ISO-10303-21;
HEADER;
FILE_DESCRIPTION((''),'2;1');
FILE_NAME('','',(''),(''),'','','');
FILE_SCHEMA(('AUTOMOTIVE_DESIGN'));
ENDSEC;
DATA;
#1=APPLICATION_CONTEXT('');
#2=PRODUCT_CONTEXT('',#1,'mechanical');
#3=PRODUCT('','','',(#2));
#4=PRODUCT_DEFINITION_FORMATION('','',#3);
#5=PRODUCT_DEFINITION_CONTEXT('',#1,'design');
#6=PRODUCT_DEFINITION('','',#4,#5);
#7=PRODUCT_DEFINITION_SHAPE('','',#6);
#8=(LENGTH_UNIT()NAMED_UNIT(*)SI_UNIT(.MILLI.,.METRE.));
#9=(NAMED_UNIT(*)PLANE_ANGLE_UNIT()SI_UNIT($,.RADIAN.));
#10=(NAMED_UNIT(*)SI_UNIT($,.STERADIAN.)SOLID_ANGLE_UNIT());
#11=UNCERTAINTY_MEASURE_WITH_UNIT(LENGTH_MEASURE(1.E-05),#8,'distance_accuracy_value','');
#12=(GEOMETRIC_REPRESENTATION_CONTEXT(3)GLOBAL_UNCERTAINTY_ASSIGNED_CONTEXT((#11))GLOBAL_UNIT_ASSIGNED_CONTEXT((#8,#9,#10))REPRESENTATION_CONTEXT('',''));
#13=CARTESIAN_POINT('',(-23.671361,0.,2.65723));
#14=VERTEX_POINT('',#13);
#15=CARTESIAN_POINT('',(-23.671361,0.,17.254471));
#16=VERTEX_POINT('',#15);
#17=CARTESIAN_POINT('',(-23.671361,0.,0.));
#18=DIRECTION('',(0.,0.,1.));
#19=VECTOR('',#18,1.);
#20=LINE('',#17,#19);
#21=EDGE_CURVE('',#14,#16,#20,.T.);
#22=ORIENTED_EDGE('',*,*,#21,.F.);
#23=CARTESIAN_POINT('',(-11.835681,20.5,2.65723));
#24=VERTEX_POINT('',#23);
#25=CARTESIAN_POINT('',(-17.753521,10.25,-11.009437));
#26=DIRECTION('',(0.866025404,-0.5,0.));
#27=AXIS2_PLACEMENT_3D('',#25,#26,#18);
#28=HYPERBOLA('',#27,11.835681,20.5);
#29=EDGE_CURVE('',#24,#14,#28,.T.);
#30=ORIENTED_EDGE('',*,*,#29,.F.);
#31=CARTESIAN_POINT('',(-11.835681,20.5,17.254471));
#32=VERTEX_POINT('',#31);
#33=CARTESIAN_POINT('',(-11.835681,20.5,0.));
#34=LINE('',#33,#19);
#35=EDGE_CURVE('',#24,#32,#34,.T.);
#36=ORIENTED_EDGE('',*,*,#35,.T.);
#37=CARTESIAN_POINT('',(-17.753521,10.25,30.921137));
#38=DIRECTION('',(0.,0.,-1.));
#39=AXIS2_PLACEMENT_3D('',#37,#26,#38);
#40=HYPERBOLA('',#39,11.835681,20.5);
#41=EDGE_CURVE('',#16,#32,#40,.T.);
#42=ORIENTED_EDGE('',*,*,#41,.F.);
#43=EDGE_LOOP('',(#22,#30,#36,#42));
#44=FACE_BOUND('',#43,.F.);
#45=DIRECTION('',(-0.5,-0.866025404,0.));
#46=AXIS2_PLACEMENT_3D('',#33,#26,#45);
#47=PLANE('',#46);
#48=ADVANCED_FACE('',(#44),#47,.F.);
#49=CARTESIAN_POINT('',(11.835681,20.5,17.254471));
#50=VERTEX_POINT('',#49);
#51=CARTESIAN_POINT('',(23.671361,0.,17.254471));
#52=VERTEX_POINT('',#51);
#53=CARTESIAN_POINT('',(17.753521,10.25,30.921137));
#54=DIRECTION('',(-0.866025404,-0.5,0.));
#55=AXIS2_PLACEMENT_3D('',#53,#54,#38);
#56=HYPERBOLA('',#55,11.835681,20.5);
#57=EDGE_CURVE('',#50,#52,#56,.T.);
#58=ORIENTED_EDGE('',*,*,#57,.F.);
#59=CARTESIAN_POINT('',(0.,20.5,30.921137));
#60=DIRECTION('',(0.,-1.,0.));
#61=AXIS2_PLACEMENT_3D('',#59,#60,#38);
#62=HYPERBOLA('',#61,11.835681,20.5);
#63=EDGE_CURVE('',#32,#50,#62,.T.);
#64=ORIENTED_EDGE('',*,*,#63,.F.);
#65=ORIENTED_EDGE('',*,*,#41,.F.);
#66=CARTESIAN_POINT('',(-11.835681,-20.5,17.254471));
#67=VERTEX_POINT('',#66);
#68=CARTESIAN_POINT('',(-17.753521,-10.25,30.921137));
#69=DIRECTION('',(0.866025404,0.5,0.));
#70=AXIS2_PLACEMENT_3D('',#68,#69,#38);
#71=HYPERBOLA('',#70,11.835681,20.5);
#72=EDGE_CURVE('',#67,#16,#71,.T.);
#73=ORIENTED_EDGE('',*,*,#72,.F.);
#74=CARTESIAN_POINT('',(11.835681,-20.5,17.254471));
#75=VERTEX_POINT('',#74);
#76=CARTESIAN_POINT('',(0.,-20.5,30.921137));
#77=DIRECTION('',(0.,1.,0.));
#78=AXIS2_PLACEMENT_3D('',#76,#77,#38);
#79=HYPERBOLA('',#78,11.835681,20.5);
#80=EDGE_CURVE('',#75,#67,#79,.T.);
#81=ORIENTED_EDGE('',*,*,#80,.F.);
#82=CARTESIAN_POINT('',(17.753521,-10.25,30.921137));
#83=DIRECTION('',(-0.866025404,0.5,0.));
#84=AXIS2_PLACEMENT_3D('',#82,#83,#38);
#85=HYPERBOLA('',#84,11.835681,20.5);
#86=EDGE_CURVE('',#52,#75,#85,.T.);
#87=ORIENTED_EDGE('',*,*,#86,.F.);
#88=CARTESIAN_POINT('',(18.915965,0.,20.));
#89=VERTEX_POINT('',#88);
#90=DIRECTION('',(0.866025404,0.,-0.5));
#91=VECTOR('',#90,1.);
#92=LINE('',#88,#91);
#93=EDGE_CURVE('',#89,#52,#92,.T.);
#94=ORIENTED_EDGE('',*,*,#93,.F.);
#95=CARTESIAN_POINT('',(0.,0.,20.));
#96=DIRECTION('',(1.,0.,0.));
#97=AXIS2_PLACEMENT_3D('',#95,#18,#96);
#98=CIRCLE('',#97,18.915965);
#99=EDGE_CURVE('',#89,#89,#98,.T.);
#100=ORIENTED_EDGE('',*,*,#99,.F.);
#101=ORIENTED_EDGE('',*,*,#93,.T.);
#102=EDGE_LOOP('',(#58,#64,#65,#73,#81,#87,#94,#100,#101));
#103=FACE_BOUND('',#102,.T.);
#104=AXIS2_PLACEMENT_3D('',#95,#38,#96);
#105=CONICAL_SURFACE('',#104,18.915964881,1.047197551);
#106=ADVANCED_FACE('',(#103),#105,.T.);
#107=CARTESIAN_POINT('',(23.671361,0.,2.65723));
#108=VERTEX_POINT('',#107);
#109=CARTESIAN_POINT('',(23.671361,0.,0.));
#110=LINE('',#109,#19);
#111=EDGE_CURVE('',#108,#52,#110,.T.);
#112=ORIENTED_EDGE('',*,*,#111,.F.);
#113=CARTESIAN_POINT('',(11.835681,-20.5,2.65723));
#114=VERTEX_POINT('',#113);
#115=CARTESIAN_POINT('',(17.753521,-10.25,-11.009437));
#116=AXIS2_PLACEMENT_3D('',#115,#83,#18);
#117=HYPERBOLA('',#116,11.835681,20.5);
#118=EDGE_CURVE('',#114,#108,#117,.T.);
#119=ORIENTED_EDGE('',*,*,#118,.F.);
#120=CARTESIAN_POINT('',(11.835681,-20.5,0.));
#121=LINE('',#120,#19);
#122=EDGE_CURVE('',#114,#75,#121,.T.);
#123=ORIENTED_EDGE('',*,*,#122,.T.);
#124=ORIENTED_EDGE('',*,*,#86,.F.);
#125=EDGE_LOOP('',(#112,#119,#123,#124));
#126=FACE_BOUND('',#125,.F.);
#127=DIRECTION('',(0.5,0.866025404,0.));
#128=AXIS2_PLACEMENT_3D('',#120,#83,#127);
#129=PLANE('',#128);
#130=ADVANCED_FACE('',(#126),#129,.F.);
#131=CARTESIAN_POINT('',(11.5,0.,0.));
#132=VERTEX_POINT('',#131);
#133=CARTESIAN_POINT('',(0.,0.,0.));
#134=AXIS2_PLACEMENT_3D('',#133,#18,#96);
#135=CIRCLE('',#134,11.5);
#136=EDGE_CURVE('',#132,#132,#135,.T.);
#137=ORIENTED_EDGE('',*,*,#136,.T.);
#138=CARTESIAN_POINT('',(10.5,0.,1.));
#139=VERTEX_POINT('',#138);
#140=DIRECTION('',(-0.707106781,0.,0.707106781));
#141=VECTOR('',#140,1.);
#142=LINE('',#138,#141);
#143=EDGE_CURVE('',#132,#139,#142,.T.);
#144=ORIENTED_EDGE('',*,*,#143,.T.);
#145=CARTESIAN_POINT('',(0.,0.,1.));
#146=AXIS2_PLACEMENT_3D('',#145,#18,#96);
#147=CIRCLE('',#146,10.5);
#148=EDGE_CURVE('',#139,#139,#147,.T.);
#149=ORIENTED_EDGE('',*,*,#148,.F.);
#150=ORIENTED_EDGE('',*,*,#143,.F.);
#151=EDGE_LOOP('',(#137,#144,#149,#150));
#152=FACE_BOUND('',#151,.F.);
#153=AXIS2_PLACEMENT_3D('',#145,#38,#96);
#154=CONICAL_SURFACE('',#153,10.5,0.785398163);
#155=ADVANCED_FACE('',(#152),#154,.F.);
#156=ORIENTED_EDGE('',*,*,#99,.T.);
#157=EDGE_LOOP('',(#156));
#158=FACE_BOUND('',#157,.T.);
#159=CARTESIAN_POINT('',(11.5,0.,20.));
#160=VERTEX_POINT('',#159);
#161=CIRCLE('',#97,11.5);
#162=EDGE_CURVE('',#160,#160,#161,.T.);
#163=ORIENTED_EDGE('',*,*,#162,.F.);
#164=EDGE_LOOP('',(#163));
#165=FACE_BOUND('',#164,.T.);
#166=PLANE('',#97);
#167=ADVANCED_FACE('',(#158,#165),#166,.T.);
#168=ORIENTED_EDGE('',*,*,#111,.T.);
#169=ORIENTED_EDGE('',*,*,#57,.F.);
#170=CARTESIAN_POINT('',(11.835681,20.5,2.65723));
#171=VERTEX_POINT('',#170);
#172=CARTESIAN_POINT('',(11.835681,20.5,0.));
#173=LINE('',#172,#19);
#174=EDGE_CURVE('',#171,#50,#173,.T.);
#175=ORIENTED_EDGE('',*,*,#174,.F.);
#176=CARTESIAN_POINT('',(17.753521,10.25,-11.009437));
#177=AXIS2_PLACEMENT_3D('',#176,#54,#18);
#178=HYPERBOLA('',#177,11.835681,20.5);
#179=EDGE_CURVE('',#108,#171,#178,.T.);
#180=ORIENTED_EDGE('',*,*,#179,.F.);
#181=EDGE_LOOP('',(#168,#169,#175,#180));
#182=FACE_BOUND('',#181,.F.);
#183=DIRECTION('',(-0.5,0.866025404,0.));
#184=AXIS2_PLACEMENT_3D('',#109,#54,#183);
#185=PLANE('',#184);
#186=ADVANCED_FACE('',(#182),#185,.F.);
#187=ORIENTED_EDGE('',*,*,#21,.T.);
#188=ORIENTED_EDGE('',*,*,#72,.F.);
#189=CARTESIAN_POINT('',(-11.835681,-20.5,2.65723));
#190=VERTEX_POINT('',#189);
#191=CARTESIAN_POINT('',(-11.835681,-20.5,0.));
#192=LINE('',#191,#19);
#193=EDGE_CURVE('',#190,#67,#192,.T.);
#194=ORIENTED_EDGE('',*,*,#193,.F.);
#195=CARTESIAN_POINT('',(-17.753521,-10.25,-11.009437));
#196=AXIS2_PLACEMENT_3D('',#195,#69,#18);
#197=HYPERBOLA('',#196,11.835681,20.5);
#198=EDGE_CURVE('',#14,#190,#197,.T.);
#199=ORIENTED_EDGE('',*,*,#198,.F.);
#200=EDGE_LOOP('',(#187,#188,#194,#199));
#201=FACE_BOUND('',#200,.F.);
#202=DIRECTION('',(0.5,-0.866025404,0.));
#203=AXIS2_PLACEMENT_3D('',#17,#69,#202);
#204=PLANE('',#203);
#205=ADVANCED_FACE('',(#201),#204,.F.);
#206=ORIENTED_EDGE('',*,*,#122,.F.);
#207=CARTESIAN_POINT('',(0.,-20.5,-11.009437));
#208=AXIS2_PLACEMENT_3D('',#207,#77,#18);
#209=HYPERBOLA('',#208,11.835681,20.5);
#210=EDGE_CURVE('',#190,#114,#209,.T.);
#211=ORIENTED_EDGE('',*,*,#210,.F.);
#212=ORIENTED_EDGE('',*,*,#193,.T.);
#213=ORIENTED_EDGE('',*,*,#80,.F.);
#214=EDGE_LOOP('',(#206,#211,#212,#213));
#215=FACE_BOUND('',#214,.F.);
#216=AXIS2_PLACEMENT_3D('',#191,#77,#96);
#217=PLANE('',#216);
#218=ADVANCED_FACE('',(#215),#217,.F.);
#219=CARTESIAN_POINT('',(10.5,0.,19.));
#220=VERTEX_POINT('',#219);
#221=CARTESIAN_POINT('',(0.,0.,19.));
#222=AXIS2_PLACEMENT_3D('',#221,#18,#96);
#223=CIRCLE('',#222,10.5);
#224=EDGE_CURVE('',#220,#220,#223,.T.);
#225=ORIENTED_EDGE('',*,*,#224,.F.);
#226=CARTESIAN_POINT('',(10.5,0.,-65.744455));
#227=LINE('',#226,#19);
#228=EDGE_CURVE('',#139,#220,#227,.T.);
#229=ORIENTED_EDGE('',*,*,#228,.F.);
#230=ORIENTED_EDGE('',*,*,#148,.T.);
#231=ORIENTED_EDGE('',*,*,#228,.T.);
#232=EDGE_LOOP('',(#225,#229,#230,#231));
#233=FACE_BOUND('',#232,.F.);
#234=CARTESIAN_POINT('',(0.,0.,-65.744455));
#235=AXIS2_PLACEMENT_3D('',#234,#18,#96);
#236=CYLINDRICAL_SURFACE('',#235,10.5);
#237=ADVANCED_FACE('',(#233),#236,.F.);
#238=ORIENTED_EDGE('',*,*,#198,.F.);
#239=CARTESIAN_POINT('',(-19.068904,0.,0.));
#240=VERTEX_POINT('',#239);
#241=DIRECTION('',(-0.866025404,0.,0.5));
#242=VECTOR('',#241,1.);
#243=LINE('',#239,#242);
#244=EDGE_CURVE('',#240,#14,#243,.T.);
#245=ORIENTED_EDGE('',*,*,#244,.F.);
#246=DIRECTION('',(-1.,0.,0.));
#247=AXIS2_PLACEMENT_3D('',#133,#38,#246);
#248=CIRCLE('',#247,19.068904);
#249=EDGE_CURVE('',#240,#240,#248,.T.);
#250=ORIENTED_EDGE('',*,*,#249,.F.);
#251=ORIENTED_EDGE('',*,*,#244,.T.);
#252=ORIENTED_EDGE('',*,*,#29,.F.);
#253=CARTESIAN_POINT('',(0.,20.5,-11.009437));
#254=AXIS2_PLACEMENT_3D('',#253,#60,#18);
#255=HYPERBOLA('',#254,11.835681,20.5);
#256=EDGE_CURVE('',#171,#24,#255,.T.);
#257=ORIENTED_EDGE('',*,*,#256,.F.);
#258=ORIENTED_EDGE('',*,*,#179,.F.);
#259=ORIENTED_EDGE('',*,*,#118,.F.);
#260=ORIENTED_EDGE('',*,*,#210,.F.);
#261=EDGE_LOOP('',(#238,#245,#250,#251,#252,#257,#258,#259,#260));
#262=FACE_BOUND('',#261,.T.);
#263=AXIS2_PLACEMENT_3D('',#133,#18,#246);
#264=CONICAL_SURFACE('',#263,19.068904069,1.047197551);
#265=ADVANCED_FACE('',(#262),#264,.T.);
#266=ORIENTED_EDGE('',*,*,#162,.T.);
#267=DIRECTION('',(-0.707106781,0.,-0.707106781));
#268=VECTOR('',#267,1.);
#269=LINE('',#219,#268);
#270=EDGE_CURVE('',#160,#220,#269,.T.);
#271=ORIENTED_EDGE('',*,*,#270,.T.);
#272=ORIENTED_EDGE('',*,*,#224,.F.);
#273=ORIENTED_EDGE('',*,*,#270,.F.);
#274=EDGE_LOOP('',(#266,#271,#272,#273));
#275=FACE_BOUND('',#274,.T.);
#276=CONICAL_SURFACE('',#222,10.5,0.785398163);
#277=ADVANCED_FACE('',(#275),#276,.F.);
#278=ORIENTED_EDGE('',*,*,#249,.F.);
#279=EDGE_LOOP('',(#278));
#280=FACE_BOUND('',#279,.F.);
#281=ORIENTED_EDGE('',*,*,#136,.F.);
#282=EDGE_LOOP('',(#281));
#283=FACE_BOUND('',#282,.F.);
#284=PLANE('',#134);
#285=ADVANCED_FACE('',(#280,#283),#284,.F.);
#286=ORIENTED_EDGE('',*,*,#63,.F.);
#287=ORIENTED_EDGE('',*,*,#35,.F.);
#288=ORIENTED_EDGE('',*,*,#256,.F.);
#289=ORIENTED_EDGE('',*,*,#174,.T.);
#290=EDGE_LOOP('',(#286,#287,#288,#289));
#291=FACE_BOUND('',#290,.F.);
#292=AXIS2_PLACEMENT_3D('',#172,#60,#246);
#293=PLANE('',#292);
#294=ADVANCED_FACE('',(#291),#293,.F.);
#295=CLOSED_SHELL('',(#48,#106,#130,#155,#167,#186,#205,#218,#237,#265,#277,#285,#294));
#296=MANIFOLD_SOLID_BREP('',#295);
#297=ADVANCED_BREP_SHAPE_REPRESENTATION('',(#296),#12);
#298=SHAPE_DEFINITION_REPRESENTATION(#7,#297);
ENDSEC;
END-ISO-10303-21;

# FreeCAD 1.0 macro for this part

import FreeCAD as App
import Part
import Sketcher
Q = App.Units.Quantity


def edges_at(feature, points):
    """Names of the edges that pass closest to the given points."""
    edges = feature.Shape.Edges
    near = lambda p: min(range(len(edges)), key=lambda i: edges[i].distToShape(Part.Vertex(*p))[0])
    return sorted({f"Edge{near(p) + 1}" for p in points})


def faces_at(feature, points):
    """Names of the faces that lie closest to the given points."""
    faces = feature.Shape.Faces
    near = lambda p: min(range(len(faces)), key=lambda i: faces[i].distToShape(Part.Vertex(*p))[0])
    return sorted({f"Face{near(p) + 1}" for p in points})


def add_polygon(sketch, points):
    """Adds a closed chain of lines whose ends are joined by coincident constraints."""
    first, n = sketch.GeometryCount, len(points)
    for a, b in zip(points, points[1:] + points[:1]):
        sketch.addGeometry(Part.LineSegment(App.Vector(*a, 0), App.Vector(*b, 0)), False)
    for i in range(n):
        sketch.addConstraint(Sketcher.Constraint("Coincident", first + i, 2, first + (i + 1) % n, 1))

doc = App.newDocument("Part")
params = doc.addObject("Spreadsheet::Sheet", "Params")
for row, (alias, value) in enumerate([
    ("pad1_length", "20 mm"),
    ("pad2_length", "3 mm"),
    ("draft_angle", "60 deg"),
    ("pad3_length", "3 mm"),
    ("draft2_angle", "60 deg"),
    ("sketch4_diameter", "21 mm"),
    ("hole_diameter", "21 mm"),
    ("chamfer_size", "1 mm"),
], start=1):
    params.set(f"A{row}", alias)
    params.set(f"B{row}", "=" + value)
    params.setAlias(f"B{row}", alias)

body = doc.addObject("PartDesign::Body", "Body")

# Sketch on XY plane
sketch1 = body.newObject("Sketcher::SketchObject", "Sketch")
sketch1.AttachmentSupport = (doc.getObject("XY_Plane"), [""])
sketch1.MapMode = "FlatFace"
add_polygon(sketch1, [(24, 0), (12, 20), (-12, 20), (-24, 0), (-12, -20), (12, -20)])  # lines 0-5
sketch1.addConstraint([
    Sketcher.Constraint("Horizontal", 1),
    Sketcher.Constraint("Horizontal", 4),
    Sketcher.Constraint("Symmetric", 0, 2, 3, 2, -1, 1),
    Sketcher.Constraint("Symmetric", 2, 2, 5, 2, -1, 1),
    Sketcher.Constraint("PointOnObject", 2, 2, -1),
    Sketcher.Constraint("Parallel", 2, 5),
    Sketcher.Constraint("Vertical", 1, 2, 3, 2),
    Sketcher.Constraint("Angle", 0, Q("120 deg")),
    Sketcher.Constraint("DistanceY", 3, 2, 1, 2, 41.0),
    Sketcher.Constraint("DistanceX", 1, 2, 1, 1, 23.671361),
])
pad1 = body.newObject("PartDesign::Pad", "Pad")
pad1.Profile = sketch1
pad1.setExpression("Length", "Params.pad1_length")
body2 = doc.addObject("PartDesign::Body", "Body001")

# Sketch on XY plane
sketch2 = body2.newObject("Sketcher::SketchObject", "Sketch001")
sketch2.AttachmentSupport = (doc.getObject("XY_Plane001"), [""])
sketch2.MapMode = "FlatFace"
sketch2.AttachmentOffset = App.Placement(App.Vector(0, 0, 20), App.Rotation())
add_polygon(sketch2, [(-36, 33), (-36, -33), (36, -33), (36, 33)])  # lines 0-3
sketch2.addGeometry(Part.Circle(App.Vector(0, 0, 0), App.Vector(0, 0, 1), 19), False)  # 4
sketch2.addConstraint([
    Sketcher.Constraint("Vertical", 0),
    Sketcher.Constraint("Horizontal", 1),
    Sketcher.Constraint("Vertical", 2),
    Sketcher.Constraint("Horizontal", 3),
    Sketcher.Constraint("Coincident", 4, 3, -1, 1),
    Sketcher.Constraint("Symmetric", 0, 2, 2, 2, -1, 1),
    Sketcher.Constraint("Diameter", 4, 37.83193),
    Sketcher.Constraint("DistanceX", 1, 1, 1, 2, 72.884),
    Sketcher.Constraint("DistanceY", 0, 2, 0, 1, 66.542),
])
pad2 = body2.newObject("PartDesign::Pad", "Pad001")
pad2.Profile = sketch2
pad2.setExpression("Length", "Params.pad2_length")
pad2.Reversed = True
doc.recompute()

datumplane = body2.newObject("PartDesign::Plane", "DatumPlane")
datumplane.AttachmentSupport = (doc.getObject("XY_Plane001"), [""])
datumplane.MapMode = "FlatFace"
datumplane.AttachmentOffset = App.Placement(App.Vector(0, 0, 20), App.Rotation())
draft = body2.newObject("PartDesign::Draft", "Draft")
draft.Base = (pad2, faces_at(pad2, [
    (0, -33.271, 18.5),
    (36.442, 0, 18.5),
    (0, 33.271, 18.5),
    (-36.442, 0, 18.5),
    (-18.916, 0, 18.5),
]))
draft.NeutralPlane = (datumplane, [""])
draft.setExpression("Angle", "Params.draft_angle")
draft.Reversed = True
doc.recompute()

boolean = body.newObject("PartDesign::Boolean", "Boolean")
boolean.Type = "Cut"
boolean.addObjects([body2])
body3 = doc.addObject("PartDesign::Body", "Body002")

# Sketch on XY plane
sketch3 = body3.newObject("Sketcher::SketchObject", "Sketch002")
sketch3.AttachmentSupport = (doc.getObject("XY_Plane002"), [""])
sketch3.MapMode = "FlatFace"
add_polygon(sketch3, [(36, 33), (36, -33), (-36, -33), (-36, 33)])  # lines 0-3
sketch3.addGeometry(Part.Circle(App.Vector(0, 0, 0), App.Vector(0, 0, 1), 19), False)  # 4
sketch3.addConstraint([
    Sketcher.Constraint("Vertical", 0),
    Sketcher.Constraint("Horizontal", 1),
    Sketcher.Constraint("Vertical", 2),
    Sketcher.Constraint("Horizontal", 3),
    Sketcher.Constraint("Coincident", 4, 3, -1, 1),
    Sketcher.Constraint("Symmetric", 0, 2, 2, 2, -1, 1),
    Sketcher.Constraint("Diameter", 4, 38.137808),
    Sketcher.Constraint("DistanceX", 1, 2, 1, 1, 72.884),
    Sketcher.Constraint("DistanceY", 0, 2, 0, 1, 66.542),
])
pad3 = body3.newObject("PartDesign::Pad", "Pad002")
pad3.Profile = sketch3
pad3.setExpression("Length", "Params.pad3_length")
doc.recompute()

draft2 = body3.newObject("PartDesign::Draft", "Draft001")
draft2.Base = (pad3, faces_at(pad3, [
    (0, -33.271, 1.5),
    (-36.442, 0, 1.5),
    (0, 33.271, 1.5),
    (36.442, 0, 1.5),
    (19.069, 0, 1.5),
]))
draft2.NeutralPlane = (doc.getObject("XY_Plane002"), [""])
draft2.setExpression("Angle", "Params.draft2_angle")
draft2.Reversed = False
doc.recompute()

boolean2 = body.newObject("PartDesign::Boolean", "Boolean001")
boolean2.Type = "Cut"
boolean2.addObjects([body3])

# Sketch on XY plane
sketch4 = body.newObject("Sketcher::SketchObject", "Sketch003")
sketch4.AttachmentSupport = (doc.getObject("XY_Plane"), [""])
sketch4.MapMode = "FlatFace"
sketch4.addGeometry(Part.Circle(App.Vector(0, 0, 0), App.Vector(0, 0, 1), 10), False)
sketch4.addConstraint([
    Sketcher.Constraint("Coincident", 0, 3, -1, 1),
    Sketcher.Constraint("Diameter", 0, 21.0),
])
sketch4.setExpression("Constraints[1]", "Params.sketch4_diameter")
doc.recompute()
hole = body.newObject("PartDesign::Hole", "Hole")
hole.Profile = sketch4
hole.ThreadType = "None"
hole.setExpression("Diameter", "Params.hole_diameter")
hole.DepthType = "ThroughAll"
hole.Reversed = True
doc.recompute()

chamfer = body.newObject("PartDesign::Chamfer", "Chamfer")
chamfer.Base = (hole, edges_at(hole, [(-10.5, 0, 0), (-10.5, 0, 20)]))
chamfer.setExpression("Size", "Params.chamfer_size")

doc.recompute()
